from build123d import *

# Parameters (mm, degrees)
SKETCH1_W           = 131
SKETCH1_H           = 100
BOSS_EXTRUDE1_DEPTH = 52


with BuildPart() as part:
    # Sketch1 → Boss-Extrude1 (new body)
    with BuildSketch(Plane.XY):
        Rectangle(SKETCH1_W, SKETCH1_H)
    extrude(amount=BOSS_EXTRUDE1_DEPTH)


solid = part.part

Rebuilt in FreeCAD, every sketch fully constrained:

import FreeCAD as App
import Part
import Sketcher
from FreeCAD import Vector

doc = App.newDocument("Part")
body = doc.addObject("PartDesign::Body", "Body")

sketch1 = doc.addObject("Sketcher::SketchObject", "Sketch")
body.addObject(sketch1)
sketch1.AttachmentSupport = (doc.XY_Plane, [""])
sketch1.MapMode = "FlatFace"
sketch1.addGeometry([
    Part.LineSegment(Vector(-66, 50, 0), Vector(-66, -50, 0)),
    Part.LineSegment(Vector(-66, -50, 0), Vector(66, -50, 0)),
    Part.LineSegment(Vector(66, -50, 0), Vector(66, 50, 0)),
    Part.LineSegment(Vector(66, 50, 0), Vector(-66, 50, 0)),
], False)
sketch1.addConstraint([
    Sketcher.Constraint("Coincident", 0, 2, 1, 1),
    Sketcher.Constraint("Coincident", 1, 2, 2, 1),
    Sketcher.Constraint("Coincident", 2, 2, 3, 1),
    Sketcher.Constraint("Coincident", 3, 2, 0, 1),
    Sketcher.Constraint("Vertical", 0),
    Sketcher.Constraint("Horizontal", 1),
    Sketcher.Constraint("Vertical", 2),
    Sketcher.Constraint("Horizontal", 3),
    Sketcher.Constraint("Symmetric", 0, 2, 2, 2, -1, 1),
    Sketcher.Constraint("DistanceX", 1, 1, 1, 2, 131.0),
    Sketcher.Constraint("DistanceY", 0, 2, 0, 1, 100.0),
])
pad1 = doc.addObject("PartDesign::Pad", "Pad")
body.addObject(pad1)
pad1.Profile = sketch1
pad1.Length = 52

doc.recompute()
